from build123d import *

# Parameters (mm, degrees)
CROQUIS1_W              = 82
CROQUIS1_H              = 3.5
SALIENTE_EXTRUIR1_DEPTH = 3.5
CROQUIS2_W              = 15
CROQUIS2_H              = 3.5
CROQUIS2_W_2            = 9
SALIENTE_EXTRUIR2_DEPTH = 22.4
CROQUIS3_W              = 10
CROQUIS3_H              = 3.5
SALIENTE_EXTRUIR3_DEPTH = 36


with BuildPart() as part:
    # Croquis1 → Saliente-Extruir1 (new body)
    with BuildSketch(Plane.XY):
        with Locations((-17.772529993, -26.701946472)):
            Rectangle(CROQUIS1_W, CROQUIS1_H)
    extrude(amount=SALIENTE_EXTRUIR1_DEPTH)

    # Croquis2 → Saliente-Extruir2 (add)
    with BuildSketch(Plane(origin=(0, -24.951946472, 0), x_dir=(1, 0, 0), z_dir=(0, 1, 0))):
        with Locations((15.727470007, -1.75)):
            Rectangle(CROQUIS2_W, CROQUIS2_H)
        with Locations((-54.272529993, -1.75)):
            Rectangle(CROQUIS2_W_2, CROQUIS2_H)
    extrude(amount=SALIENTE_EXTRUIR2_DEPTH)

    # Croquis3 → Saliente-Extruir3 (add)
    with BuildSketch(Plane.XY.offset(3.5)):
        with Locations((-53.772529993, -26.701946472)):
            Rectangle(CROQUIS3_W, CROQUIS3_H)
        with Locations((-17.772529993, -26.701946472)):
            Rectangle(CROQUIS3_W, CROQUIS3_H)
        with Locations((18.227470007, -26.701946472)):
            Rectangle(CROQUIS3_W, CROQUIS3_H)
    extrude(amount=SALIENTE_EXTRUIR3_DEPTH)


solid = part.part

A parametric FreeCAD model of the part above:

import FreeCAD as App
import Part
import Sketcher

V = App.Vector
Q = App.Units.Quantity


def add_polygon(sketch, points):
    """Adds a closed chain of lines whose ends are joined by coincident constraints."""
    first, n = sketch.GeometryCount, len(points)
    for a, b in zip(points, points[1:] + points[:1]):
        sketch.addGeometry(Part.LineSegment(App.Vector(*a, 0), App.Vector(*b, 0)), False)
    for i in range(n):
        sketch.addConstraint(Sketcher.Constraint("Coincident", first + i, 2, first + (i + 1) % n, 1))

doc = App.newDocument("Part")
body = doc.addObject("PartDesign::Body", "Body")

sketch1 = body.newObject("Sketcher::SketchObject", "Sketch")
sketch1.AttachmentSupport = (doc.getObject("XY_Plane"), [""])
sketch1.MapMode = "FlatFace"
add_polygon(sketch1, [(-58.77253, -24.951946), (-58.77253, -28.451946), (23.22747, -28.451946), (23.22747, -24.951946)])
sketch1.addConstraint([
    Sketcher.Constraint("Vertical", 0),
    Sketcher.Constraint("Horizontal", 1),
    Sketcher.Constraint("Vertical", 2),
    Sketcher.Constraint("Horizontal", 3),
    Sketcher.Constraint("DistanceX", 1, 1, 1, 2, Q("82 mm")),
    Sketcher.Constraint("DistanceY", 0, 2, 0, 1, Q("3.5 mm")),
    Sketcher.Constraint("DistanceX", 0, 2, -1, 1, Q("58.77253 mm")),
    Sketcher.Constraint("DistanceY", 0, 2, -1, 1, Q("28.451946 mm")),
])
pad1 = body.newObject("PartDesign::Pad", "Pad")
pad1.Profile = sketch1
pad1.Length = 3.5

sketch2 = body.newObject("Sketcher::SketchObject", "Sketch001")
sketch2.AttachmentSupport = (doc.getObject("XZ_Plane"), [""])
sketch2.MapMode = "FlatFace"
sketch2.AttachmentOffset = App.Placement(V(0, 0, 24.951946), App.Rotation())
add_polygon(sketch2, [(8.22747, 0), (8.22747, 3.5), (23.22747, 3.5), (23.22747, 0)])
add_polygon(sketch2, [(-58.77253, 0), (-58.77253, 3.5), (-49.77253, 3.5), (-49.77253, 0)])
sketch2.addConstraint([
    Sketcher.Constraint("Vertical", 0),
    Sketcher.Constraint("Horizontal", 1),
    Sketcher.Constraint("Vertical", 2),
    Sketcher.Constraint("Horizontal", 3),
    Sketcher.Constraint("Vertical", 4),
    Sketcher.Constraint("Horizontal", 5),
    Sketcher.Constraint("Vertical", 6),
    Sketcher.Constraint("Horizontal", 7),
    Sketcher.Constraint("PointOnObject", 2, 2, -1),
    Sketcher.Constraint("PointOnObject", 6, 2, -1),
    Sketcher.Constraint("Horizontal", 1, 2, 4, 2),
    Sketcher.Constraint("DistanceX", 1, 1, 1, 2, Q("15 mm")),
    Sketcher.Constraint("DistanceX", 5, 1, 5, 2, Q("9 mm")),
    Sketcher.Constraint("DistanceY", 0, 1, 0, 2, Q("3.5 mm")),
    Sketcher.Constraint("DistanceX", 4, 2, 0, 2, Q("67 mm")),
    Sketcher.Constraint("DistanceX", -1, 1, 0, 2, Q("8.22747 mm")),
])
pad2 = body.newObject("PartDesign::Pad", "Pad001")
pad2.Profile = sketch2
pad2.Length = 22.4
pad2.Reversed = True

sketch3 = body.newObject("Sketcher::SketchObject", "Sketch002")
sketch3.AttachmentSupport = (doc.getObject("XY_Plane"), [""])
sketch3.MapMode = "FlatFace"
sketch3.AttachmentOffset = App.Placement(V(0, 0, 3.5), App.Rotation())
add_polygon(sketch3, [(-58.77253, -24.951946), (-58.77253, -28.451946), (-48.77253, -28.451946), (-48.77253, -24.951946)])
add_polygon(sketch3, [(-22.77253, -24.951946), (-22.77253, -28.451946), (-12.77253, -28.451946), (-12.77253, -24.951946)])
add_polygon(sketch3, [(13.22747, -24.951946), (13.22747, -28.451946), (23.22747, -28.451946), (23.22747, -24.951946)])
sketch3.addConstraint([
    Sketcher.Constraint("Vertical", 0),
    Sketcher.Constraint("Horizontal", 1),
    Sketcher.Constraint("Vertical", 2),
    Sketcher.Constraint("Horizontal", 3),
    Sketcher.Constraint("Vertical", 4),
    Sketcher.Constraint("Horizontal", 5),
    Sketcher.Constraint("Vertical", 6),
    Sketcher.Constraint("Horizontal", 7),
    Sketcher.Constraint("Vertical", 8),
    Sketcher.Constraint("Horizontal", 9),
    Sketcher.Constraint("Vertical", 10),
    Sketcher.Constraint("Horizontal", 11),
    Sketcher.Constraint("Horizontal", 1, 2, 4, 2),
    Sketcher.Constraint("Horizontal", 3, 2, 6, 2),
    Sketcher.Constraint("Horizontal", 5, 2, 8, 2),
    Sketcher.Constraint("Horizontal", 7, 2, 10, 2),
    Sketcher.Constraint("Equal", 3, 5),
    Sketcher.Constraint("Equal", 7, 9),
    Sketcher.Constraint("DistanceX", 1, 1, 1, 2, Q("10 mm")),
    Sketcher.Constraint("DistanceY", 0, 2, 0, 1, Q("3.5 mm")),
    Sketcher.Constraint("DistanceX", 1, 2, 4, 2, Q("26 mm")),
    Sketcher.Constraint("DistanceX", 5, 2, 8, 2, Q("26 mm")),
    Sketcher.Constraint("DistanceX", 0, 2, -1, 1, Q("58.77253 mm")),
    Sketcher.Constraint("DistanceY", 0, 2, -1, 1, Q("28.451946 mm")),
])
pad3 = body.newObject("PartDesign::Pad", "Pad002")
pad3.Profile = sketch3
pad3.Length = 36

doc.recompute()
